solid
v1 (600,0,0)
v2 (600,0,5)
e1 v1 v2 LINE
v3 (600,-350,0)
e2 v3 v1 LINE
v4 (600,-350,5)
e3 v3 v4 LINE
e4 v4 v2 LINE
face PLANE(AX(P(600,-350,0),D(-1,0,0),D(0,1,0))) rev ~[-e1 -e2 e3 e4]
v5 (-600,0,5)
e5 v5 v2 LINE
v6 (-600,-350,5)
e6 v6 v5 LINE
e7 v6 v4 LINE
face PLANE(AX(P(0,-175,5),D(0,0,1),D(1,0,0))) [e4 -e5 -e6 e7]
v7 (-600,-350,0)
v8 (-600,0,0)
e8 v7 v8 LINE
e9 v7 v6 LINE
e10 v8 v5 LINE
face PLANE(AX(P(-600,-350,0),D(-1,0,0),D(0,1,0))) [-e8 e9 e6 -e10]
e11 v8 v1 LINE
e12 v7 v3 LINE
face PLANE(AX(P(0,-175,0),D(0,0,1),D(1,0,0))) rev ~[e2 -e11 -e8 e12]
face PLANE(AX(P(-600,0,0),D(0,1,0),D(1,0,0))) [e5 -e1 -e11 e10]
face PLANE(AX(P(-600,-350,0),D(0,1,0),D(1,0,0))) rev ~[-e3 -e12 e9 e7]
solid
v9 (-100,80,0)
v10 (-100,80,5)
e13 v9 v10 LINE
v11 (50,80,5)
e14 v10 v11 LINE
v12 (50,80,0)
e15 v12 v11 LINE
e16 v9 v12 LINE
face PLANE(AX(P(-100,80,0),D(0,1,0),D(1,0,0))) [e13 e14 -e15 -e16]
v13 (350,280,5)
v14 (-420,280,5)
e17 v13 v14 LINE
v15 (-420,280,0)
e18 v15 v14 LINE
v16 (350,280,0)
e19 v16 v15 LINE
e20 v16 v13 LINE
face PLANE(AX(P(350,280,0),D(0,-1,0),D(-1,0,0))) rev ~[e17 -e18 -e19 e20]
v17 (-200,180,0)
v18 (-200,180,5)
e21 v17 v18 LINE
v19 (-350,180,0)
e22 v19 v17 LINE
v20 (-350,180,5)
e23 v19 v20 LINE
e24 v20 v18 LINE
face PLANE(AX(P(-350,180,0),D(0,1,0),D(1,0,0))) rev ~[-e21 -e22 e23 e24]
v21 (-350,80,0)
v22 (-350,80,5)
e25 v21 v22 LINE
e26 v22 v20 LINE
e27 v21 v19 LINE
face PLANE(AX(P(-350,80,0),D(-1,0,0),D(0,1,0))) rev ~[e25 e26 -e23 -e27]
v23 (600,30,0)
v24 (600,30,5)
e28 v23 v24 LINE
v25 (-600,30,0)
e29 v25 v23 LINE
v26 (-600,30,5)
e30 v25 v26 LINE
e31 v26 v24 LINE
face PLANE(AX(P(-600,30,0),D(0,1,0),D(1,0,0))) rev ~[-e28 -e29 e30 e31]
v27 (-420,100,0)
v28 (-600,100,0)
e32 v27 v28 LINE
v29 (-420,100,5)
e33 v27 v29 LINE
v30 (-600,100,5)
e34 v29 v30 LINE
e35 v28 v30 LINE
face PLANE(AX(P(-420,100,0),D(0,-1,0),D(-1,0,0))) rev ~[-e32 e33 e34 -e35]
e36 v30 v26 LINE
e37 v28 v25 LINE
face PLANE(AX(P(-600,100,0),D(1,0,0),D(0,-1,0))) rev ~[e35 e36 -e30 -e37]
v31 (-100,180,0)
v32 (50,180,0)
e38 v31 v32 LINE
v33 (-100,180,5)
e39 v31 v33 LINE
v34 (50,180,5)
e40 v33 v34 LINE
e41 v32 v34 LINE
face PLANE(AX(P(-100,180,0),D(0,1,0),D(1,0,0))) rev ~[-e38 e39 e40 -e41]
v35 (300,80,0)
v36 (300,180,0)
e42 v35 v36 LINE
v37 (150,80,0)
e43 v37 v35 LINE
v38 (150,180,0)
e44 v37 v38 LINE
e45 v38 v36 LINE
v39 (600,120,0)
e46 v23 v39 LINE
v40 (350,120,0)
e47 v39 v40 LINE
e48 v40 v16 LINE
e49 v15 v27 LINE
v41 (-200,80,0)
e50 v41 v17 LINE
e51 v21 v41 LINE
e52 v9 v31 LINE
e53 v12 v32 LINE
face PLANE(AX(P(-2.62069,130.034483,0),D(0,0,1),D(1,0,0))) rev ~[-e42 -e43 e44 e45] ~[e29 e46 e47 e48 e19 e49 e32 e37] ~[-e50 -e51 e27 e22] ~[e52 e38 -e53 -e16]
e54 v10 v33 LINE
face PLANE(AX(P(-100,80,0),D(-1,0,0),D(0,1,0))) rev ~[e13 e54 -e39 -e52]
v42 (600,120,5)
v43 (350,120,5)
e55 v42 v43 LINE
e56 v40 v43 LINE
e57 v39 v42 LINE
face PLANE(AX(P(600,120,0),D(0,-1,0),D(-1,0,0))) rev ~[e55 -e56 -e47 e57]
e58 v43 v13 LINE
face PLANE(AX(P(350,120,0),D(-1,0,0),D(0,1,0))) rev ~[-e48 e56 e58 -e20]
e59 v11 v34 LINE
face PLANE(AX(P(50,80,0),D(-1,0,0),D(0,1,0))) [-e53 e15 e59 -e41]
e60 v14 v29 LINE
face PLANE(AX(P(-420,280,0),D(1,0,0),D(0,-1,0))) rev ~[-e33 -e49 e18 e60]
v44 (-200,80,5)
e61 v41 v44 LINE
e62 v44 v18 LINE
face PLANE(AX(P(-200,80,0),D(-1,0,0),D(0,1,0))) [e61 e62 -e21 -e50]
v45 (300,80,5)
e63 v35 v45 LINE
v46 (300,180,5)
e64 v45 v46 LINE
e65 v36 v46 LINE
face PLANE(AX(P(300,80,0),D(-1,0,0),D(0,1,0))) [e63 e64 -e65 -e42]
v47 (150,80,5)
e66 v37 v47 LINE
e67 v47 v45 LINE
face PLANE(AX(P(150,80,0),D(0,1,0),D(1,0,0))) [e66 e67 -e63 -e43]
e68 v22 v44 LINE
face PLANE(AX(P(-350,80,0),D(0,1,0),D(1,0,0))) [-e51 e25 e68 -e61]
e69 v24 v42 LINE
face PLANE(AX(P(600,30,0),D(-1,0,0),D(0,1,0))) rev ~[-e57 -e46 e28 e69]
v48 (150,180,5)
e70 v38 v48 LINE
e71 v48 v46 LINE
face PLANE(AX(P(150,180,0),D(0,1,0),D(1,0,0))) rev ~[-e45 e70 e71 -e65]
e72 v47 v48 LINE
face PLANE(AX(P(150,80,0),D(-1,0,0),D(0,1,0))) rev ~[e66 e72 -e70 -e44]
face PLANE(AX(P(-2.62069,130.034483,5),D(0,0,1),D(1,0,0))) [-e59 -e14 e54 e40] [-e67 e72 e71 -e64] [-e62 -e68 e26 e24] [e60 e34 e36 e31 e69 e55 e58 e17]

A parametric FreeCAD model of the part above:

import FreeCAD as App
import Part
import Sketcher
Q = App.Units.Quantity

doc = App.newDocument("Part")
body = doc.addObject("PartDesign::Body", "Body")
body.AllowCompound = True

# Sketch on XY plane
sketch1 = body.newObject("Sketcher::SketchObject", "Sketch")
sketch1.AttachmentSupport = (doc.getObject("XY_Plane"), [""])
sketch1.MapMode = "FlatFace"
sketch1.addGeometry(Part.LineSegment(App.Vector(-600, 0, 0), App.Vector(-600, -350, 0)), False)
sketch1.addGeometry(Part.LineSegment(App.Vector(-600, -350, 0), App.Vector(600, -350, 0)), False)
sketch1.addGeometry(Part.LineSegment(App.Vector(600, -350, 0), App.Vector(600, 0, 0)), False)
sketch1.addGeometry(Part.LineSegment(App.Vector(600, 0, 0), App.Vector(-600, 0, 0)), False)
sketch1.addGeometry(Part.LineSegment(App.Vector(-600, 100, 0), App.Vector(-600, 30, 0)), False)
sketch1.addGeometry(Part.LineSegment(App.Vector(-600, 30, 0), App.Vector(600, 30, 0)), False)
sketch1.addGeometry(Part.LineSegment(App.Vector(600, 30, 0), App.Vector(600, 120, 0)), False)
sketch1.addGeometry(Part.LineSegment(App.Vector(600, 120, 0), App.Vector(350, 120, 0)), False)
sketch1.addGeometry(Part.LineSegment(App.Vector(350, 120, 0), App.Vector(350, 280, 0)), False)
sketch1.addGeometry(Part.LineSegment(App.Vector(350, 280, 0), App.Vector(-420, 280, 0)), False)
sketch1.addGeometry(Part.LineSegment(App.Vector(-420, 280, 0), App.Vector(-420, 100, 0)), False)
sketch1.addGeometry(Part.LineSegment(App.Vector(-420, 100, 0), App.Vector(-600, 100, 0)), False)
sketch1.addGeometry(Part.LineSegment(App.Vector(-200, 80, 0), App.Vector(-350, 80, 0)), False)
sketch1.addGeometry(Part.LineSegment(App.Vector(-350, 80, 0), App.Vector(-350, 180, 0)), False)
sketch1.addGeometry(Part.LineSegment(App.Vector(-350, 180, 0), App.Vector(-200, 180, 0)), False)
sketch1.addGeometry(Part.LineSegment(App.Vector(-200, 180, 0), App.Vector(-200, 80, 0)), False)
sketch1.addGeometry(Part.LineSegment(App.Vector(50, 80, 0), App.Vector(-100, 80, 0)), False)
sketch1.addGeometry(Part.LineSegment(App.Vector(-100, 80, 0), App.Vector(-100, 180, 0)), False)
sketch1.addGeometry(Part.LineSegment(App.Vector(-100, 180, 0), App.Vector(50, 180, 0)), False)
sketch1.addGeometry(Part.LineSegment(App.Vector(50, 180, 0), App.Vector(50, 80, 0)), False)
sketch1.addGeometry(Part.LineSegment(App.Vector(300, 80, 0), App.Vector(150, 80, 0)), False)
sketch1.addGeometry(Part.LineSegment(App.Vector(150, 80, 0), App.Vector(150, 180, 0)), False)
sketch1.addGeometry(Part.LineSegment(App.Vector(150, 180, 0), App.Vector(300, 180, 0)), False)
sketch1.addGeometry(Part.LineSegment(App.Vector(300, 180, 0), App.Vector(300, 80, 0)), False)
sketch1.addConstraint(Sketcher.Constraint("Coincident", 0, 2, 1, 1))
sketch1.addConstraint(Sketcher.Constraint("Coincident", 1, 2, 2, 1))
sketch1.addConstraint(Sketcher.Constraint("Coincident", 2, 2, 3, 1))
sketch1.addConstraint(Sketcher.Constraint("Coincident", 3, 2, 0, 1))
sketch1.addConstraint(Sketcher.Constraint("Coincident", 4, 2, 5, 1))
sketch1.addConstraint(Sketcher.Constraint("Coincident", 5, 2, 6, 1))
sketch1.addConstraint(Sketcher.Constraint("Coincident", 6, 2, 7, 1))
sketch1.addConstraint(Sketcher.Constraint("Coincident", 7, 2, 8, 1))
sketch1.addConstraint(Sketcher.Constraint("Coincident", 8, 2, 9, 1))
sketch1.addConstraint(Sketcher.Constraint("Coincident", 9, 2, 10, 1))
sketch1.addConstraint(Sketcher.Constraint("Coincident", 10, 2, 11, 1))
sketch1.addConstraint(Sketcher.Constraint("Coincident", 11, 2, 4, 1))
sketch1.addConstraint(Sketcher.Constraint("Coincident", 12, 2, 13, 1))
sketch1.addConstraint(Sketcher.Constraint("Coincident", 13, 2, 14, 1))
sketch1.addConstraint(Sketcher.Constraint("Coincident", 14, 2, 15, 1))
sketch1.addConstraint(Sketcher.Constraint("Coincident", 15, 2, 12, 1))
sketch1.addConstraint(Sketcher.Constraint("Coincident", 16, 2, 17, 1))
sketch1.addConstraint(Sketcher.Constraint("Coincident", 17, 2, 18, 1))
sketch1.addConstraint(Sketcher.Constraint("Coincident", 18, 2, 19, 1))
sketch1.addConstraint(Sketcher.Constraint("Coincident", 19, 2, 16, 1))
sketch1.addConstraint(Sketcher.Constraint("Coincident", 20, 2, 21, 1))
sketch1.addConstraint(Sketcher.Constraint("Coincident", 21, 2, 22, 1))
sketch1.addConstraint(Sketcher.Constraint("Coincident", 22, 2, 23, 1))
sketch1.addConstraint(Sketcher.Constraint("Coincident", 23, 2, 20, 1))
sketch1.addConstraint(Sketcher.Constraint("Vertical", 0))
sketch1.addConstraint(Sketcher.Constraint("Horizontal", 1))
sketch1.addConstraint(Sketcher.Constraint("Vertical", 2))
sketch1.addConstraint(Sketcher.Constraint("Horizontal", 3))
sketch1.addConstraint(Sketcher.Constraint("Vertical", 4))
sketch1.addConstraint(Sketcher.Constraint("Horizontal", 5))
sketch1.addConstraint(Sketcher.Constraint("Vertical", 6))
sketch1.addConstraint(Sketcher.Constraint("Horizontal", 7))
sketch1.addConstraint(Sketcher.Constraint("Vertical", 8))
sketch1.addConstraint(Sketcher.Constraint("Horizontal", 9))
sketch1.addConstraint(Sketcher.Constraint("Vertical", 10))
sketch1.addConstraint(Sketcher.Constraint("Horizontal", 11))
sketch1.addConstraint(Sketcher.Constraint("Horizontal", 12))
sketch1.addConstraint(Sketcher.Constraint("Vertical", 13))
sketch1.addConstraint(Sketcher.Constraint("Horizontal", 14))
sketch1.addConstraint(Sketcher.Constraint("Vertical", 15))
sketch1.addConstraint(Sketcher.Constraint("Horizontal", 16))
sketch1.addConstraint(Sketcher.Constraint("Vertical", 17))
sketch1.addConstraint(Sketcher.Constraint("Horizontal", 18))
sketch1.addConstraint(Sketcher.Constraint("Vertical", 19))
sketch1.addConstraint(Sketcher.Constraint("Horizontal", 20))
sketch1.addConstraint(Sketcher.Constraint("Vertical", 21))
sketch1.addConstraint(Sketcher.Constraint("Horizontal", 22))
sketch1.addConstraint(Sketcher.Constraint("Vertical", 23))
sketch1.addConstraint(Sketcher.Constraint("Symmetric", 2, 2, 3, 2, -1, 1))
sketch1.addConstraint(Sketcher.Constraint("Horizontal", 15, 2, 16, 2))
sketch1.addConstraint(Sketcher.Constraint("Horizontal", 14, 2, 17, 2))
sketch1.addConstraint(Sketcher.Constraint("Horizontal", 19, 2, 20, 2))
sketch1.addConstraint(Sketcher.Constraint("Horizontal", 18, 2, 21, 2))
sketch1.addConstraint(Sketcher.Constraint("Vertical", 3, 2, 4, 2))
sketch1.addConstraint(Sketcher.Constraint("Vertical", 2, 2, 5, 2))
sketch1.addConstraint(Sketcher.Constraint("Equal", 14, 16))
sketch1.addConstraint(Sketcher.Constraint("Equal", 18, 20))
sketch1.addConstraint(Sketcher.Constraint("Equal", 11, 10))
sketch1.addConstraint(Sketcher.Constraint("DistanceX", 1, 1, 1, 2, Q("1200 mm")))
sketch1.addConstraint(Sketcher.Constraint("DistanceX", 7, 2, 7, 1, Q("250 mm")))
sketch1.addConstraint(Sketcher.Constraint("DistanceX", 9, 2, 9, 1, Q("770 mm")))
sketch1.addConstraint(Sketcher.Constraint("DistanceX", 12, 2, 12, 1, Q("150 mm")))
sketch1.addConstraint(Sketcher.Constraint("DistanceY", 0, 2, 0, 1, Q("350 mm")))
sketch1.addConstraint(Sketcher.Constraint("DistanceY", 4, 2, 4, 1, Q("70 mm")))
sketch1.addConstraint(Sketcher.Constraint("DistanceY", 6, 1, 6, 2, Q("90 mm")))
sketch1.addConstraint(Sketcher.Constraint("DistanceY", 13, 1, 13, 2, Q("100 mm")))
sketch1.addConstraint(Sketcher.Constraint("DistanceY", -1, 1, 4, 2, Q("30 mm")))
sketch1.addConstraint(Sketcher.Constraint("DistanceX", 12, 2, -1, 1, Q("350 mm")))
sketch1.addConstraint(Sketcher.Constraint("DistanceY", -1, 1, 12, 2, Q("80 mm")))
sketch1.addConstraint(Sketcher.Constraint("DistanceX", 16, 2, -1, 1, Q("100 mm")))
sketch1.addConstraint(Sketcher.Constraint("DistanceX", -1, 1, 20, 2, Q("150 mm")))
pad1 = body.newObject("PartDesign::Pad", "Pad")
pad1.Profile = sketch1
pad1.Length = 5

doc.recompute()
